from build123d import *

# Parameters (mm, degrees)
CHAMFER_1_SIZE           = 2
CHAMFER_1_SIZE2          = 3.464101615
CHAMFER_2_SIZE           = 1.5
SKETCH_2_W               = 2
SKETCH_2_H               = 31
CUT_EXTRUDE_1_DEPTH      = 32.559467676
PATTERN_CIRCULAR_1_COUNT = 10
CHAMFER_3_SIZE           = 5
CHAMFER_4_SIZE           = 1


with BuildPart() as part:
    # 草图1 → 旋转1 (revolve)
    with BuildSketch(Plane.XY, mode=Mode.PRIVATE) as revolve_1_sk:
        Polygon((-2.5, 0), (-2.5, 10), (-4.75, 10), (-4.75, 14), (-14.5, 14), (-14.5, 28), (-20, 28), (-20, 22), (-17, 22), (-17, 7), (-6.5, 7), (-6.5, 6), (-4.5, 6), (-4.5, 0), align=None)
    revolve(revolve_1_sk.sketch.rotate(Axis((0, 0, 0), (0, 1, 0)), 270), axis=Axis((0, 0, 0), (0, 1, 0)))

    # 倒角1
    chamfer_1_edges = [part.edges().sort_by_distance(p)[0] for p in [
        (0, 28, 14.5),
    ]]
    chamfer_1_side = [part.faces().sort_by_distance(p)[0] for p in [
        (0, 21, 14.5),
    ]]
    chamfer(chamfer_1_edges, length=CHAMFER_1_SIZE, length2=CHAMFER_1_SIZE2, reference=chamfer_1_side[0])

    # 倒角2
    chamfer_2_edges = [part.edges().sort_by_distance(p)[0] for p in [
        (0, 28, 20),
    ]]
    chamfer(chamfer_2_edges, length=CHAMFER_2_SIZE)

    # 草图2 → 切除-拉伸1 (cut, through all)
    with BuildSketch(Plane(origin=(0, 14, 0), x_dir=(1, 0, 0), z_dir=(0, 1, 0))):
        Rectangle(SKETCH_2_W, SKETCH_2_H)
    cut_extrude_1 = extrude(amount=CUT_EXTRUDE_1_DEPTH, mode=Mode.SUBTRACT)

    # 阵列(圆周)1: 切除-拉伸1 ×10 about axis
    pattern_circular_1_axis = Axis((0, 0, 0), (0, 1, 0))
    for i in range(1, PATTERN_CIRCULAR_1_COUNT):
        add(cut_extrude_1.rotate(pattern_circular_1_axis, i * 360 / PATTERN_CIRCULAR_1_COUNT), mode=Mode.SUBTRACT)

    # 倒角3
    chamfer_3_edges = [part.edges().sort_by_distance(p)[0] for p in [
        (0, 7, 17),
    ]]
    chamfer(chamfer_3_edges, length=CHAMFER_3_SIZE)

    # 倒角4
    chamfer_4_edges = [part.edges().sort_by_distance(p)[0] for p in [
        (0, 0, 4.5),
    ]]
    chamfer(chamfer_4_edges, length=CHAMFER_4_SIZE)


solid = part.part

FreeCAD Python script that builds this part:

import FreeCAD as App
import Part
import Sketcher

V = App.Vector
Q = App.Units.Quantity


def edges_at(feature, points):
    """Names of the edges that pass closest to the given points."""
    edges = feature.Shape.Edges
    near = lambda p: min(range(len(edges)), key=lambda i: edges[i].distToShape(Part.Vertex(*p))[0])
    return sorted({f"Edge{near(p) + 1}" for p in points})


def add_polygon(sketch, points):
    """Adds a closed chain of lines whose ends are joined by coincident constraints."""
    first, n = sketch.GeometryCount, len(points)
    for a, b in zip(points, points[1:] + points[:1]):
        sketch.addGeometry(Part.LineSegment(App.Vector(*a, 0), App.Vector(*b, 0)), False)
    for i in range(n):
        sketch.addConstraint(Sketcher.Constraint("Coincident", first + i, 2, first + (i + 1) % n, 1))

doc = App.newDocument("Part")
params = doc.addObject("Spreadsheet::Sheet", "Params")
for row, (alias, value) in enumerate([
    ("sketch1_width", "3 mm"),
    ("sketch1_width2", "2 mm"),
    ("sketch1_height", "10 mm"),
    ("sketch1_height2", "4 mm"),
    ("sketch1_height3", "14 mm"),
    ("revolution_angle", "360 deg"),
    ("chamfer_size", "2 mm"),
    ("chamfer_size2", "3.464102 mm"),
    ("chamfer2_size", "1.5 mm"),
    ("sketch2_width", "2 mm"),
    ("sketch2_height", "31 mm"),
    ("chamfer3_size", "5 mm"),
    ("chamfer4_size", "1 mm"),
], start=1):
    params.set(f"A{row}", alias)
    params.set(f"B{row}", "=" + value)
    params.setAlias(f"B{row}", alias)

body = doc.addObject("PartDesign::Body", "Body")

# Sketch on XY plane
sketch1 = body.newObject("Sketcher::SketchObject", "Sketch")
sketch1.AttachmentSupport = (doc.getObject("XY_Plane"), [""])
sketch1.MapMode = "FlatFace"
add_polygon(sketch1, [(-2.5, 0), (-2.5, 10), (-4.8, 10), (-4.8, 14), (-14.5, 14), (-14.5, 28), (-20, 28), (-20, 22), (-17, 22), (-17, 7), (-6.5, 7), (-6.5, 6), (-4.5, 6), (-4.5, 0)])  # lines 0-13
sketch1.addConstraint(Sketcher.Constraint("Vertical", 0))
sketch1.addConstraint(Sketcher.Constraint("Horizontal", 1))
sketch1.addConstraint(Sketcher.Constraint("Vertical", 2))
sketch1.addConstraint(Sketcher.Constraint("Horizontal", 3))
sketch1.addConstraint(Sketcher.Constraint("Vertical", 4))
sketch1.addConstraint(Sketcher.Constraint("Horizontal", 5))
sketch1.addConstraint(Sketcher.Constraint("Vertical", 6))
sketch1.addConstraint(Sketcher.Constraint("Horizontal", 7))
sketch1.addConstraint(Sketcher.Constraint("Vertical", 8))
sketch1.addConstraint(Sketcher.Constraint("Horizontal", 9))
sketch1.addConstraint(Sketcher.Constraint("Vertical", 10))
sketch1.addConstraint(Sketcher.Constraint("Horizontal", 11))
sketch1.addConstraint(Sketcher.Constraint("Vertical", 12))
sketch1.addConstraint(Sketcher.Constraint("Horizontal", 13))
sketch1.addConstraint(Sketcher.Constraint("PointOnObject", 12, 2, -1))
sketch1.addConstraint(Sketcher.Constraint("Equal", 11, 13))
sketch1.addConstraint(Sketcher.Constraint("Equal", 6, 12))
sketch1.addConstraint(Sketcher.Constraint("DistanceX", 7, 1, 7, 2, Q("3 mm")))
sketch1.addConstraint(Sketcher.Constraint("DistanceX", 11, 1, 11, 2, Q("2 mm")))
sketch1.addConstraint(Sketcher.Constraint("DistanceY", 0, 1, 0, 2, Q("10 mm")))
sketch1.addConstraint(Sketcher.Constraint("DistanceY", 2, 1, 2, 2, Q("4 mm")))
sketch1.addConstraint(Sketcher.Constraint("DistanceY", 4, 1, 4, 2, Q("14 mm")))
sketch1.addConstraint(Sketcher.Constraint("DistanceY", 6, 2, 6, 1, Q("6 mm")))
sketch1.addConstraint(Sketcher.Constraint("DistanceY", 8, 2, 8, 1, Q("15 mm")))
sketch1.addConstraint(Sketcher.Constraint("DistanceX", 5, 2, 5, 1, Q("5.5 mm")))
sketch1.addConstraint(Sketcher.Constraint("DistanceX", 9, 1, 9, 2, Q("10.5 mm")))
sketch1.addConstraint(Sketcher.Constraint("DistanceX", 5, 2, -1, 1, Q("20 mm")))
sketch1.addConstraint(Sketcher.Constraint("DistanceX", 1, 2, 1, 1, Q("2.25 mm")))
sketch1.setExpression("Constraints[31]", "Params.sketch1_width")
sketch1.setExpression("Constraints[32]", "Params.sketch1_width2")
sketch1.setExpression("Constraints[33]", "Params.sketch1_height")
sketch1.setExpression("Constraints[34]", "Params.sketch1_height2")
sketch1.setExpression("Constraints[35]", "Params.sketch1_height3")
revolution = body.newObject("PartDesign::Revolution", "Revolution")
revolution.Profile = sketch1
revolution.ReferenceAxis = (sketch1, ["V_Axis"])
revolution.setExpression("Angle", "Params.revolution_angle")
doc.recompute()

chamfer = body.newObject("PartDesign::Chamfer", "Chamfer")
chamfer.Base = (revolution, edges_at(revolution, [(0, 28, 14.5)]))
chamfer.ChamferType = "Two distances"
chamfer.setExpression("Size", "Params.chamfer_size")
chamfer.setExpression("Size2", "Params.chamfer_size2")
doc.recompute()

chamfer2 = body.newObject("PartDesign::Chamfer", "Chamfer001")
chamfer2.Base = (chamfer, edges_at(chamfer, [(0, 28, 20)]))
chamfer2.setExpression("Size", "Params.chamfer2_size")

# Sketch on XZ plane
sketch2 = body.newObject("Sketcher::SketchObject", "Sketch001")
sketch2.AttachmentSupport = (doc.getObject("XZ_Plane"), [""])
sketch2.MapMode = "FlatFace"
sketch2.AttachmentOffset = App.Placement(V(0, 0, -14), App.Rotation())
add_polygon(sketch2, [(-1, -15.5), (-1, 15.5), (1, 15.5), (1, -15.5)])  # lines 0-3
sketch2.addConstraint(Sketcher.Constraint("Vertical", 0))
sketch2.addConstraint(Sketcher.Constraint("Horizontal", 1))
sketch2.addConstraint(Sketcher.Constraint("Vertical", 2))
sketch2.addConstraint(Sketcher.Constraint("Horizontal", 3))
sketch2.addConstraint(Sketcher.Constraint("Symmetric", 0, 2, 2, 2, -1, 1))
sketch2.addConstraint(Sketcher.Constraint("DistanceX", 1, 1, 1, 2, Q("2 mm")))
sketch2.addConstraint(Sketcher.Constraint("DistanceY", 0, 1, 0, 2, Q("31 mm")))
sketch2.setExpression("Constraints[9]", "Params.sketch2_width")
sketch2.setExpression("Constraints[10]", "Params.sketch2_height")
pocket1 = body.newObject("PartDesign::Pocket", "Pocket")
pocket1.Profile = sketch2
pocket1.Type = "ThroughAll"
doc.recompute()

polarpattern = body.newObject("PartDesign::PolarPattern", "PolarPattern")
polarpattern.Originals = [pocket1]
polarpattern.Axis = (doc.getObject("Y_Axis"), [""])
polarpattern.Angle = 360
polarpattern.Occurrences = 10
body.Tip = polarpattern
doc.recompute()

chamfer3 = body.newObject("PartDesign::Chamfer", "Chamfer002")
chamfer3.Base = (polarpattern, edges_at(polarpattern, [(0, 7, 17)]))
chamfer3.setExpression("Size", "Params.chamfer3_size")
doc.recompute()

chamfer4 = body.newObject("PartDesign::Chamfer", "Chamfer003")
chamfer4.Base = (chamfer3, edges_at(chamfer3, [(0, 0, 4.5)]))
chamfer4.setExpression("Size", "Params.chamfer4_size")

doc.recompute()
